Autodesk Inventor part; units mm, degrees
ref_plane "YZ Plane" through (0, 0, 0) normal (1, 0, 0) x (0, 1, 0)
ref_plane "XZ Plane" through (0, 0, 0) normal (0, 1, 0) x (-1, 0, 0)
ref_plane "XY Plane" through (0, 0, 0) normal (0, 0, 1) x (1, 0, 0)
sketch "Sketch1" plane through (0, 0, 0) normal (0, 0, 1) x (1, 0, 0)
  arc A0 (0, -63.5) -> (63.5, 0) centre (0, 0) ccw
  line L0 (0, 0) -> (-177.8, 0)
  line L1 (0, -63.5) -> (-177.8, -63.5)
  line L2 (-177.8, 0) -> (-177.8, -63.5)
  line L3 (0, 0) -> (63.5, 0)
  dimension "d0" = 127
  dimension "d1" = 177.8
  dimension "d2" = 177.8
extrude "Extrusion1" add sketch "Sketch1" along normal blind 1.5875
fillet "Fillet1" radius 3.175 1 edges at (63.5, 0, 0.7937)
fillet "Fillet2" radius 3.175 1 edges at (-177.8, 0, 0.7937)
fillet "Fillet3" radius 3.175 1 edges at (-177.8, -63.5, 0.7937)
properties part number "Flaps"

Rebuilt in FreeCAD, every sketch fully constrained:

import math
import FreeCAD as App
import Part
import Sketcher

V = App.Vector
Q = App.Units.Quantity


def edges_at(feature, points):
    """Names of the edges that pass closest to the given points."""
    edges = feature.Shape.Edges
    near = lambda p: min(range(len(edges)), key=lambda i: edges[i].distToShape(Part.Vertex(*p))[0])
    return sorted({f"Edge{near(p) + 1}" for p in points})

doc = App.newDocument("Part")
body = doc.addObject("PartDesign::Body", "Body")

# Sketch on XY plane
sketch1 = body.newObject("Sketcher::SketchObject", "Sketch")
sketch1.AttachmentSupport = (doc.getObject("XY_Plane"), [""])
sketch1.MapMode = "FlatFace"
sketch1.addGeometry([
    Part.LineSegment(V(-178, -64, 0), V(0, -64, 0)),
    Part.ArcOfCircle(Part.Circle(V(0, 0, 0), V(0, 0, 1), 64), math.radians(-90), math.radians(0)),
    Part.LineSegment(V(64, 0, 0), V(-178, 0, 0)),
    Part.LineSegment(V(-178, 0, 0), V(-178, -64, 0)),
], False)
sketch1.addConstraint([
    Sketcher.Constraint("Tangent", 0, 2, 1, 1),
    Sketcher.Constraint("Coincident", 1, 2, 2, 1),
    Sketcher.Constraint("Coincident", 2, 2, 3, 1),
    Sketcher.Constraint("Coincident", 3, 2, 0, 1),
    Sketcher.Constraint("Horizontal", 0),
    Sketcher.Constraint("Horizontal", 2),
    Sketcher.Constraint("Vertical", 3),
    Sketcher.Constraint("Coincident", 1, 3, -1, 1),
    Sketcher.Constraint("PointOnObject", 1, 2, -1),
    Sketcher.Constraint("Radius", 1, Q("2.5 in")),
    Sketcher.Constraint("DistanceX", 0, 1, 0, 2, Q("7 in")),
])
pad1 = body.newObject("PartDesign::Pad", "Pad")
pad1.Profile = sketch1
pad1.Length = Q("0.0625 in")
doc.recompute()

fillet = body.newObject("PartDesign::Fillet", "Fillet")
fillet.Base = (pad1, edges_at(pad1, [(63.5, 0, 0.794)]))
fillet.Radius = Q("0.125 in")
doc.recompute()

fillet2 = body.newObject("PartDesign::Fillet", "Fillet001")
fillet2.Base = (fillet, edges_at(fillet, [(-177.8, 0, 0.794)]))
fillet2.Radius = Q("0.125 in")
doc.recompute()

fillet3 = body.newObject("PartDesign::Fillet", "Fillet002")
fillet3.Base = (fillet2, edges_at(fillet2, [(-177.8, -63.5, 0.794)]))
fillet3.Radius = Q("0.125 in")

doc.recompute()
